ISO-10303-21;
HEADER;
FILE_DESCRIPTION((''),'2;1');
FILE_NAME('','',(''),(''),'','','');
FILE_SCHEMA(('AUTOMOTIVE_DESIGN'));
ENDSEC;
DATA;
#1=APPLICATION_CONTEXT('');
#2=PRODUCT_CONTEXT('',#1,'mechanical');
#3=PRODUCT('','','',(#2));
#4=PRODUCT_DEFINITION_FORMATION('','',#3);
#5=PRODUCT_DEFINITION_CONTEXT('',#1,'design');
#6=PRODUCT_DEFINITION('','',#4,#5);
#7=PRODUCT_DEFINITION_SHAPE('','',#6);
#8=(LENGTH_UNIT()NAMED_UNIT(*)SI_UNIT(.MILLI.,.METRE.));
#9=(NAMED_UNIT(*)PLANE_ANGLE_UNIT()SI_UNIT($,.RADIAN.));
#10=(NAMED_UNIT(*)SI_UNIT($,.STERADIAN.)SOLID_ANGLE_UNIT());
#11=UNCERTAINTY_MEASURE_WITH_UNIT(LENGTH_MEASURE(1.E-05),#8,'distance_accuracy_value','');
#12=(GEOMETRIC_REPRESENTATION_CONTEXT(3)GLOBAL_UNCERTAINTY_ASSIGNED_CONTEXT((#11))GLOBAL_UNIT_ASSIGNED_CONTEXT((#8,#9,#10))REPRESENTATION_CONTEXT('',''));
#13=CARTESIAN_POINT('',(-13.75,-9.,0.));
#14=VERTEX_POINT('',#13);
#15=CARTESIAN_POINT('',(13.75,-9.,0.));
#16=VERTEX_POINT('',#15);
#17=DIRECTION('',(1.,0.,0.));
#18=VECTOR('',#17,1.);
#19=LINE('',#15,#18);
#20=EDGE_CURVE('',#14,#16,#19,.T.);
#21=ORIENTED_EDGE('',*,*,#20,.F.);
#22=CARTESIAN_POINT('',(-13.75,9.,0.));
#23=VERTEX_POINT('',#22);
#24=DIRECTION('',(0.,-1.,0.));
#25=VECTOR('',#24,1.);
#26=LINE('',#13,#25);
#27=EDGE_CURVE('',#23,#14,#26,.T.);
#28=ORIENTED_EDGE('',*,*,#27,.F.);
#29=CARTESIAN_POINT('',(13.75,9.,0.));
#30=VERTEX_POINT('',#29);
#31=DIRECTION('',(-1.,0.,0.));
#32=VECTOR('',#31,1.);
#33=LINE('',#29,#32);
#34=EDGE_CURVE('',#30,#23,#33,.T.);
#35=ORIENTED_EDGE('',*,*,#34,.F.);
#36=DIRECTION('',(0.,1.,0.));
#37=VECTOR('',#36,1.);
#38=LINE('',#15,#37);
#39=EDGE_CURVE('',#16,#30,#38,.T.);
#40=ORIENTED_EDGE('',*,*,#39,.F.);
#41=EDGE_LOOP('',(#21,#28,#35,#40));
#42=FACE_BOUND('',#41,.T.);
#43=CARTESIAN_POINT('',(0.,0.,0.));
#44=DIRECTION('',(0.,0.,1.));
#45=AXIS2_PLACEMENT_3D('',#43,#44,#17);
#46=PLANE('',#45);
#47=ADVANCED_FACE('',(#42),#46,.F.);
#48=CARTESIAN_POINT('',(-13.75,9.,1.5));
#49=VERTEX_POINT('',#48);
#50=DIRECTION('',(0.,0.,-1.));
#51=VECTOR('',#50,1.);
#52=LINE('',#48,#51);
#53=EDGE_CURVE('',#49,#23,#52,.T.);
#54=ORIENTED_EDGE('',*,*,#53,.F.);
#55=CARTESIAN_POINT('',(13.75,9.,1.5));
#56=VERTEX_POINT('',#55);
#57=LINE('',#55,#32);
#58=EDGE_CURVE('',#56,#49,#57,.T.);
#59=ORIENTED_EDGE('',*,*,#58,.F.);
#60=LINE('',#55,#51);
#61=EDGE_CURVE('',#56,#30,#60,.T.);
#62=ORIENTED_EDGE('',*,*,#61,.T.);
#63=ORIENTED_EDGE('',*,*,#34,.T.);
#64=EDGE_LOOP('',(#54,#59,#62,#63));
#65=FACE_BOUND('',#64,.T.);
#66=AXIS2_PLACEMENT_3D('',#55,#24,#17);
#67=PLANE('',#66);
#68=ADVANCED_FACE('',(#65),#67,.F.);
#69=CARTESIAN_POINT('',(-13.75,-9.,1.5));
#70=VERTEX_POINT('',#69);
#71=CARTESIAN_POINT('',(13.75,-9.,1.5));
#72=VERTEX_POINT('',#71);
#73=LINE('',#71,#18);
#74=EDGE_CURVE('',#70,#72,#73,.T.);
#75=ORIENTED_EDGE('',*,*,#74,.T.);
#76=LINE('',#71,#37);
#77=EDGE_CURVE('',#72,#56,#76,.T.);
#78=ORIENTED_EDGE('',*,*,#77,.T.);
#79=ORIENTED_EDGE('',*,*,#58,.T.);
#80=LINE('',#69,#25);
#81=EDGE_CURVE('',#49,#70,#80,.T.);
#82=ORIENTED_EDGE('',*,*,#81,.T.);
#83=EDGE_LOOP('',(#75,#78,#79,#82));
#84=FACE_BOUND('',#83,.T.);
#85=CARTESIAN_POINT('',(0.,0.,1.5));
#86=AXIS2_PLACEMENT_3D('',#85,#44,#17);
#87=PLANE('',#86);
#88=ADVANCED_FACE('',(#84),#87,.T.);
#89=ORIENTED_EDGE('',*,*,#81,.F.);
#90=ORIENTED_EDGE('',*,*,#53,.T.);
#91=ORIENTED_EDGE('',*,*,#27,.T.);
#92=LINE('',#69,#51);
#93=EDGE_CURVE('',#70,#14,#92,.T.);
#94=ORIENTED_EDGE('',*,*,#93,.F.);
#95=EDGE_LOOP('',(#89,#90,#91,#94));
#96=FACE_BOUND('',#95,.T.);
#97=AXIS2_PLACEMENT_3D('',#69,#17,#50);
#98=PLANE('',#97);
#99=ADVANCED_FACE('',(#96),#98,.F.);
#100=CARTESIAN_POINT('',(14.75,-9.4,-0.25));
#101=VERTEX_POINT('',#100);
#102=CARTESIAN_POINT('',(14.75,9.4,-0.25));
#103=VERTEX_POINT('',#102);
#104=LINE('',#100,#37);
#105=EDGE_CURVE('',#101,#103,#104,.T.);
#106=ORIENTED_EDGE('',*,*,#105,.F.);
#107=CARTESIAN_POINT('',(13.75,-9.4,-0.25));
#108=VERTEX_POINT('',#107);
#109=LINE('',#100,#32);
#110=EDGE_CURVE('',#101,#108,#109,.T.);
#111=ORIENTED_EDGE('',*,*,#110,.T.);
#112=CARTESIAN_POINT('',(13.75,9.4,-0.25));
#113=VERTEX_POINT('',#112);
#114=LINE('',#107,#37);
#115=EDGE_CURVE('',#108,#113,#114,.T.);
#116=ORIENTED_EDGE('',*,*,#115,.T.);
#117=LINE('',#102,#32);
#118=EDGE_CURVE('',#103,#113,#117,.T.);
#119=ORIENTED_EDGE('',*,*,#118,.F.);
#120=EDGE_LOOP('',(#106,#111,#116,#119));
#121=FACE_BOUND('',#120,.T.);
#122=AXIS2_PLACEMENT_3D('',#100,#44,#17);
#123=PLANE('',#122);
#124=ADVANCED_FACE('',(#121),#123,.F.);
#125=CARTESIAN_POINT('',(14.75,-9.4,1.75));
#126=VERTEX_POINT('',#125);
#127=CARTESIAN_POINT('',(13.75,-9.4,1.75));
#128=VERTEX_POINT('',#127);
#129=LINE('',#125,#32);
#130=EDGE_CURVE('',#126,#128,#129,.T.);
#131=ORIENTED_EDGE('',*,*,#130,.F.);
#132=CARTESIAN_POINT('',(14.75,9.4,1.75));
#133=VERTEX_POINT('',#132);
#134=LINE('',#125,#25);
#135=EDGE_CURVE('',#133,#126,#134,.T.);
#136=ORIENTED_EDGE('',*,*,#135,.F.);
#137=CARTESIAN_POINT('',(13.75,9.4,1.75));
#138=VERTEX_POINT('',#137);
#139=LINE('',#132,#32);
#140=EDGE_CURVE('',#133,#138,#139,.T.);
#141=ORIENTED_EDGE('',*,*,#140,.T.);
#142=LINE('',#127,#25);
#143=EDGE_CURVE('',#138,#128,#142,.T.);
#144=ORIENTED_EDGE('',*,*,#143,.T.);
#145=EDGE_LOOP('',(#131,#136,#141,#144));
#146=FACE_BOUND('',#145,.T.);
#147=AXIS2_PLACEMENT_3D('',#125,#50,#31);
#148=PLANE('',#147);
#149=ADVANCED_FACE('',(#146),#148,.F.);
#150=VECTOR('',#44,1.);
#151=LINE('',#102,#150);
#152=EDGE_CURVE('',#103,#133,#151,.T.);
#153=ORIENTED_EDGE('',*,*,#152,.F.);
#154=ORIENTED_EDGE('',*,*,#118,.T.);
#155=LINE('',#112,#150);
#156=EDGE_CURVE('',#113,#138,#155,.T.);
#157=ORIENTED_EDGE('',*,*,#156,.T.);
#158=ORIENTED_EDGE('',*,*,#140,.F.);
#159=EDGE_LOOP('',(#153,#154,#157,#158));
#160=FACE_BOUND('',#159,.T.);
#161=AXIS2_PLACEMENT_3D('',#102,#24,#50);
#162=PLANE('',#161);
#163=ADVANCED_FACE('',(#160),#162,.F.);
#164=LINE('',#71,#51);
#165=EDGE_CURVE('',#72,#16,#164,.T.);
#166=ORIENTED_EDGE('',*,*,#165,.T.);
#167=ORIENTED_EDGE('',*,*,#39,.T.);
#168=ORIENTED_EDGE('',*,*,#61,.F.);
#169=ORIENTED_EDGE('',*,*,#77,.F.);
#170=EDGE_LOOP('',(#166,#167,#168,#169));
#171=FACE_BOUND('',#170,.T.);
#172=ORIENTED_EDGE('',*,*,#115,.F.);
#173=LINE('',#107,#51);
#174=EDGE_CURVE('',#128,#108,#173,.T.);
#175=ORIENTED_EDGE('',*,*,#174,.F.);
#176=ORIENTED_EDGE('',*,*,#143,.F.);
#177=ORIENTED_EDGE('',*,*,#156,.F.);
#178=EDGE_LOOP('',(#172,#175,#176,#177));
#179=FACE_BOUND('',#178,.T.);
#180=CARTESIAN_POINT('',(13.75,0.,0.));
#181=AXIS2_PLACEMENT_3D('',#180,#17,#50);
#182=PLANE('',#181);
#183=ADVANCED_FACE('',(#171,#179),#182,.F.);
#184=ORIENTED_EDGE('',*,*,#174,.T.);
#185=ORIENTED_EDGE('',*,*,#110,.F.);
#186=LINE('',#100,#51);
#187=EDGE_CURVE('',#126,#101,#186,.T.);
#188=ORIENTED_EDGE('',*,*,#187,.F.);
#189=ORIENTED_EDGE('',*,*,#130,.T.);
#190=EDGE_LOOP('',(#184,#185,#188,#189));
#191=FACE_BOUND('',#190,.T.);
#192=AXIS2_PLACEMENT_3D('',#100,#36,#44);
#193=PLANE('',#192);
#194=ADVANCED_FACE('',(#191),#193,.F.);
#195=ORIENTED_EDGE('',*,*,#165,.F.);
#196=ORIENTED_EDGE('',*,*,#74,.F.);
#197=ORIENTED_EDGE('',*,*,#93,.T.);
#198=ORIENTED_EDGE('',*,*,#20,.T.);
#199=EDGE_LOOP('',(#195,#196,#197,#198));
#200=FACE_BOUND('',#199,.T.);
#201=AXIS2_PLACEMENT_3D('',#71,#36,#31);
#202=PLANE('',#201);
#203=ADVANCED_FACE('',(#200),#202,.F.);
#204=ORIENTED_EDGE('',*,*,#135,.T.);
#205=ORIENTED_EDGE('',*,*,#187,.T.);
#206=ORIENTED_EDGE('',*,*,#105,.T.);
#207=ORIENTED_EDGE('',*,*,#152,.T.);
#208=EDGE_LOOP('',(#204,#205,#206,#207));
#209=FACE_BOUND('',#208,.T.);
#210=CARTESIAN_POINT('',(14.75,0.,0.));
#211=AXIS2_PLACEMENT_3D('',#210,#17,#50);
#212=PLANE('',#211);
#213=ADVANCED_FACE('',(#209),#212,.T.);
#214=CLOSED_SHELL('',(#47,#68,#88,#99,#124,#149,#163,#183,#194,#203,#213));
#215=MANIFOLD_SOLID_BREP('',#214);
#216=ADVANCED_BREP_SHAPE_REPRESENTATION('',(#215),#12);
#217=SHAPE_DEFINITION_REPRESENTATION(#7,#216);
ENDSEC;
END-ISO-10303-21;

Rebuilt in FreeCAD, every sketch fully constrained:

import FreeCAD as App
import Part
import Sketcher

V = App.Vector

doc = App.newDocument("Part")
body = doc.addObject("PartDesign::Body", "Body")

# Sketch on XY plane
sketch1 = doc.addObject("Sketcher::SketchObject", "Sketch")
body.addObject(sketch1)
sketch1.AttachmentSupport = (doc.XY_Plane, [""])
sketch1.MapMode = "FlatFace"
sketch1.addGeometry(Part.LineSegment(V(-14, 9, 0), V(-14, -9, 0)), False)
sketch1.addGeometry(Part.LineSegment(V(-14, -9, 0), V(14, -9, 0)), False)
sketch1.addGeometry(Part.LineSegment(V(14, -9, 0), V(14, 9, 0)), False)
sketch1.addGeometry(Part.LineSegment(V(14, 9, 0), V(-14, 9, 0)), False)
sketch1.addConstraint(Sketcher.Constraint("Coincident", 0, 2, 1, 1))
sketch1.addConstraint(Sketcher.Constraint("Coincident", 1, 2, 2, 1))
sketch1.addConstraint(Sketcher.Constraint("Coincident", 2, 2, 3, 1))
sketch1.addConstraint(Sketcher.Constraint("Coincident", 3, 2, 0, 1))
sketch1.addConstraint(Sketcher.Constraint("Vertical", 0))
sketch1.addConstraint(Sketcher.Constraint("Horizontal", 1))
sketch1.addConstraint(Sketcher.Constraint("Vertical", 2))
sketch1.addConstraint(Sketcher.Constraint("Horizontal", 3))
sketch1.addConstraint(Sketcher.Constraint("Symmetric", 0, 2, 2, 2, -1, 1))
sketch1.addConstraint(Sketcher.Constraint("DistanceY", 0, 2, 0, 1, 18.0))
sketch1.addConstraint(Sketcher.Constraint("DistanceX", 1, 1, 1, 2, 27.5))
pad1 = doc.addObject("PartDesign::Pad", "Pad")
body.addObject(pad1)
pad1.Profile = sketch1
pad1.Length = 1.5

# Sketch on YZ plane
sketch2 = doc.addObject("Sketcher::SketchObject", "Sketch001")
body.addObject(sketch2)
sketch2.AttachmentSupport = (doc.YZ_Plane, [""])
sketch2.MapMode = "FlatFace"
sketch2.AttachmentOffset = App.Placement(V(0, 0, 13.75), App.Rotation())
sketch2.addGeometry(Part.LineSegment(V(9.4, 1.8, 0), V(-9.4, 1.8, 0)), False)
sketch2.addGeometry(Part.LineSegment(V(-9.4, 1.8, 0), V(-9.4, -0.2, 0)), False)
sketch2.addGeometry(Part.LineSegment(V(-9.4, -0.2, 0), V(9.4, -0.2, 0)), False)
sketch2.addGeometry(Part.LineSegment(V(9.4, -0.2, 0), V(9.4, 1.8, 0)), False)
sketch2.addConstraint(Sketcher.Constraint("Coincident", 0, 2, 1, 1))
sketch2.addConstraint(Sketcher.Constraint("Coincident", 1, 2, 2, 1))
sketch2.addConstraint(Sketcher.Constraint("Coincident", 2, 2, 3, 1))
sketch2.addConstraint(Sketcher.Constraint("Coincident", 3, 2, 0, 1))
sketch2.addConstraint(Sketcher.Constraint("Horizontal", 0))
sketch2.addConstraint(Sketcher.Constraint("Vertical", 1))
sketch2.addConstraint(Sketcher.Constraint("Horizontal", 2))
sketch2.addConstraint(Sketcher.Constraint("Vertical", 3))
sketch2.addConstraint(Sketcher.Constraint("DistanceY", 1, 2, 1, 1, 2.0))
sketch2.addConstraint(Sketcher.Constraint("DistanceX", 0, 2, 0, 1, 18.8))
sketch2.addConstraint(Sketcher.Constraint("DistanceX", 0, 2, -1, 1, 9.4))
sketch2.addConstraint(Sketcher.Constraint("DistanceY", -1, 1, 0, 2, 1.75))
pad2 = doc.addObject("PartDesign::Pad", "Pad001")
body.addObject(pad2)
pad2.Profile = sketch2
pad2.Length = 1

doc.recompute()
